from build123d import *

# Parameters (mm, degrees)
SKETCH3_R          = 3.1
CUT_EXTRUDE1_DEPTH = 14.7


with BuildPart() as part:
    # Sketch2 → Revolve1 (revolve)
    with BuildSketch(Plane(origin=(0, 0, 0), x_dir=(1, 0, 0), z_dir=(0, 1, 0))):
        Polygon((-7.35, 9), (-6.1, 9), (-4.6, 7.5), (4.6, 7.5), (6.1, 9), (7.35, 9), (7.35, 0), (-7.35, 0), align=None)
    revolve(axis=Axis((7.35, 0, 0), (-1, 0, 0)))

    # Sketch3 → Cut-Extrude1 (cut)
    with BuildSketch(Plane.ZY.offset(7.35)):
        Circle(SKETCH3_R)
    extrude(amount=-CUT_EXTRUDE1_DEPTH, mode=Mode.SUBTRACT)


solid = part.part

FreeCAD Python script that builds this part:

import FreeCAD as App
import Part
import Sketcher

V = App.Vector
Q = App.Units.Quantity

doc = App.newDocument("Part")
body = doc.addObject("PartDesign::Body", "Body")

# Sketch on XZ plane
sketch1 = doc.addObject("Sketcher::SketchObject", "Sketch")
body.addObject(sketch1)
sketch1.AttachmentSupport = (doc.XZ_Plane, [""])
sketch1.MapMode = "FlatFace"
sketch1.addGeometry([
    Part.LineSegment(V(-6.1, -9, 0), V(-7.3, -9, 0)),  # 0
    Part.LineSegment(V(-7.3, -9, 0), V(-7.3, 0, 0)),  # 1
    Part.LineSegment(V(-7.3, 0, 0), V(7.3, 0, 0)),  # 2
    Part.LineSegment(V(7.3, 0, 0), V(7.3, -9, 0)),  # 3
    Part.LineSegment(V(7.3, -9, 0), V(6.1, -9, 0)),  # 4
    Part.LineSegment(V(6.1, -9, 0), V(4.6, -7.5, 0)),  # 5
    Part.LineSegment(V(4.6, -7.5, 0), V(-4.6, -7.5, 0)),  # 6
    Part.LineSegment(V(-4.6, -7.5, 0), V(-6.1, -9, 0)),  # 7
], False)
sketch1.addConstraint([
    Sketcher.Constraint("Coincident", 0, 2, 1, 1),
    Sketcher.Constraint("Coincident", 1, 2, 2, 1),
    Sketcher.Constraint("Coincident", 2, 2, 3, 1),
    Sketcher.Constraint("Coincident", 3, 2, 4, 1),
    Sketcher.Constraint("Coincident", 4, 2, 5, 1),
    Sketcher.Constraint("Coincident", 5, 2, 6, 1),
    Sketcher.Constraint("Coincident", 6, 2, 7, 1),
    Sketcher.Constraint("Coincident", 7, 2, 0, 1),
    Sketcher.Constraint("Horizontal", 0),
    Sketcher.Constraint("Vertical", 1),
    Sketcher.Constraint("Horizontal", 2),
    Sketcher.Constraint("Vertical", 3),
    Sketcher.Constraint("Horizontal", 4),
    Sketcher.Constraint("Horizontal", 6),
    Sketcher.Constraint("Symmetric", 1, 2, 2, 2, -1, 1),
    Sketcher.Constraint("Symmetric", 4, 2, 7, 2, -2),
    Sketcher.Constraint("Perpendicular", 5, 7),
    Sketcher.Constraint("Equal", 5, 7),
    Sketcher.Constraint("DistanceY", 1, 1, 1, 2, Q("9 mm")),
    Sketcher.Constraint("DistanceX", 2, 1, 2, 2, Q("14.7 mm")),
    Sketcher.Constraint("DistanceX", 6, 2, 6, 1, Q("9.2 mm")),
    Sketcher.Constraint("DistanceX", 0, 2, 0, 1, Q("1.25 mm")),
])
revolution = doc.addObject("PartDesign::Revolution", "Revolution")
body.addObject(revolution)
revolution.Profile = sketch1
revolution.ReferenceAxis = (sketch1, ["H_Axis"])
revolution.Angle = 360

# Sketch on YZ plane
sketch2 = doc.addObject("Sketcher::SketchObject", "Sketch001")
body.addObject(sketch2)
sketch2.AttachmentSupport = (doc.YZ_Plane, [""])
sketch2.MapMode = "FlatFace"
sketch2.AttachmentOffset = App.Placement(V(0, 0, -7.35), App.Rotation())
sketch2.addGeometry(Part.Circle(V(0, 0, 0), V(0, 0, 1), 3.1), False)
sketch2.addConstraint([
    Sketcher.Constraint("Coincident", 0, 3, -1, 1),
    Sketcher.Constraint("Diameter", 0, Q("6.2 mm")),
])
pocket1 = doc.addObject("PartDesign::Pocket", "Pocket")
body.addObject(pocket1)
pocket1.Profile = sketch2
pocket1.Length = 14.7
pocket1.Reversed = True

doc.recompute()
